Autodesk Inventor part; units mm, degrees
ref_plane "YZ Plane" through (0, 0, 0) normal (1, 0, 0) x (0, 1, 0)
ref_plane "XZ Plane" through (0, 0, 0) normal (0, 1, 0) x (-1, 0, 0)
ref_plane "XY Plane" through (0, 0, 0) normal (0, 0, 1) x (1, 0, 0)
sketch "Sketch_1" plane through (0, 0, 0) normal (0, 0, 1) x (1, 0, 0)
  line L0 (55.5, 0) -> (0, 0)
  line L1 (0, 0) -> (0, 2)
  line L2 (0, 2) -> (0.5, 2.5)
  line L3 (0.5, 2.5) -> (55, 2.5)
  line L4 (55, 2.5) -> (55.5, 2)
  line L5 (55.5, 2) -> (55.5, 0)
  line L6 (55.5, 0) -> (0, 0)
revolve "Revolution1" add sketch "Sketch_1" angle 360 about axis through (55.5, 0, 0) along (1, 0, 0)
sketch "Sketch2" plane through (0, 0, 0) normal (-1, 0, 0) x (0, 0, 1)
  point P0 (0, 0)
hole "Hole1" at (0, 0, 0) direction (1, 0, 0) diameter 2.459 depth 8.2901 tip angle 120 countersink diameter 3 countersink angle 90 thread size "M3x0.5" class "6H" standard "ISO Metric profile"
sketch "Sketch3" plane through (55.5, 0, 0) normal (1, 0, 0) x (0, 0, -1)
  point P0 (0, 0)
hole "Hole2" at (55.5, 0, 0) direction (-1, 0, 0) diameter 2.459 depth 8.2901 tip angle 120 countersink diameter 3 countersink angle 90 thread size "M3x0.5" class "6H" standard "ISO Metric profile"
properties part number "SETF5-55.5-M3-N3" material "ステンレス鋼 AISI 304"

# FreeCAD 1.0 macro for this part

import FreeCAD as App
import Part
import Sketcher

V = App.Vector


def add_polygon(sketch, points):
    """Adds a closed chain of lines whose ends are joined by coincident constraints."""
    first, n = sketch.GeometryCount, len(points)
    for a, b in zip(points, points[1:] + points[:1]):
        sketch.addGeometry(Part.LineSegment(App.Vector(*a, 0), App.Vector(*b, 0)), False)
    for i in range(n):
        sketch.addConstraint(Sketcher.Constraint("Coincident", first + i, 2, first + (i + 1) % n, 1))

doc = App.newDocument("Part")
params = doc.addObject("Spreadsheet::Sheet", "Params")
for row, (alias, value) in enumerate([
    ("sketch1_height", "2 mm"),
    ("sketch1_width", "55.5 mm"),
    ("sketch1_width2", "54.5 mm"),
    ("revolution_angle", "360 deg"),
    ("hole_diameter", "2.459 mm"),
    ("hole_depth", "8.2901 mm"),
    ("hole_csink_diameter", "3 mm"),
    ("hole2_diameter", "2.459 mm"),
    ("hole2_depth", "8.2901 mm"),
    ("hole2_csink_diameter", "3 mm"),
], start=1):
    params.set(f"A{row}", alias)
    params.set(f"B{row}", "=" + value)
    params.setAlias(f"B{row}", alias)

body = doc.addObject("PartDesign::Body", "Body")

sketch1 = body.newObject("Sketcher::SketchObject", "Sketch")
sketch1.AttachmentSupport = (doc.getObject("XY_Plane"), [""])
sketch1.MapMode = "FlatFace"
add_polygon(sketch1, [(0, 0), (55.5, 0), (55.5, 2), (55, 2.5), (0.5, 2.5), (0, 2)])
sketch1.addConstraint([
    Sketcher.Constraint("Horizontal", 0),
    Sketcher.Constraint("Vertical", 1),
    Sketcher.Constraint("Horizontal", 3),
    Sketcher.Constraint("Vertical", 5),
    Sketcher.Constraint("Coincident", 5, 2, -1, 1),
    Sketcher.Constraint("Perpendicular", 2, 4),
    Sketcher.Constraint("Horizontal", 1, 2, 4, 2),
    Sketcher.Constraint("Equal", 2, 4),
    Sketcher.Constraint("DistanceY", 1, 1, 1, 2, 2.0),
    Sketcher.Constraint("DistanceX", 0, 1, 0, 2, 55.5),
    Sketcher.Constraint("DistanceX", 3, 2, 3, 1, 54.5),
])
sketch1.setExpression("Constraints[14]", "Params.sketch1_height")
sketch1.setExpression("Constraints[15]", "Params.sketch1_width")
sketch1.setExpression("Constraints[16]", "Params.sketch1_width2")
revolution = body.newObject("PartDesign::Revolution", "Revolution")
revolution.Profile = sketch1
revolution.ReferenceAxis = (sketch1, ["H_Axis"])
revolution.setExpression("Angle", "Params.revolution_angle")

sketch2 = body.newObject("Sketcher::SketchObject", "Sketch001")
sketch2.AttachmentSupport = (doc.getObject("YZ_Plane"), [""])
sketch2.MapMode = "FlatFace"
sketch2.addGeometry(Part.Circle(V(0, 0, 0), V(0, 0, 1), 1.2295), False)
sketch2.addConstraint([
    Sketcher.Constraint("Coincident", 0, 3, -1, 1),
    Sketcher.Constraint("Diameter", 0, 2.459),
])
doc.recompute()
hole = body.newObject("PartDesign::Hole", "Hole")
hole.Profile = sketch2
hole.ThreadType = "None"
hole.setExpression("Diameter", "Params.hole_diameter")
hole.DepthType = "Dimension"
hole.setExpression("Depth", "Params.hole_depth")
hole.DrillPoint = "Angled"
hole.DrillPointAngle = 120
hole.HoleCutType = "Countersink"
hole.setExpression("HoleCutDiameter", "Params.hole_csink_diameter")
hole.HoleCutCountersinkAngle = 90
hole.Reversed = True

sketch3 = body.newObject("Sketcher::SketchObject", "Sketch002")
sketch3.AttachmentSupport = (doc.getObject("YZ_Plane"), [""])
sketch3.MapMode = "FlatFace"
sketch3.AttachmentOffset = App.Placement(V(0, 0, 55.5), App.Rotation())
sketch3.addGeometry(Part.Circle(V(0, 0, 0), V(0, 0, 1), 1.2295), False)
sketch3.addConstraint([
    Sketcher.Constraint("Coincident", 0, 3, -1, 1),
    Sketcher.Constraint("Diameter", 0, 2.459),
])
doc.recompute()
hole2 = body.newObject("PartDesign::Hole", "Hole001")
hole2.Profile = sketch3
hole2.ThreadType = "None"
hole2.setExpression("Diameter", "Params.hole2_diameter")
hole2.DepthType = "Dimension"
hole2.setExpression("Depth", "Params.hole2_depth")
hole2.DrillPoint = "Angled"
hole2.DrillPointAngle = 120
hole2.HoleCutType = "Countersink"
hole2.setExpression("HoleCutDiameter", "Params.hole2_csink_diameter")
hole2.HoleCutCountersinkAngle = 90

doc.recompute()
